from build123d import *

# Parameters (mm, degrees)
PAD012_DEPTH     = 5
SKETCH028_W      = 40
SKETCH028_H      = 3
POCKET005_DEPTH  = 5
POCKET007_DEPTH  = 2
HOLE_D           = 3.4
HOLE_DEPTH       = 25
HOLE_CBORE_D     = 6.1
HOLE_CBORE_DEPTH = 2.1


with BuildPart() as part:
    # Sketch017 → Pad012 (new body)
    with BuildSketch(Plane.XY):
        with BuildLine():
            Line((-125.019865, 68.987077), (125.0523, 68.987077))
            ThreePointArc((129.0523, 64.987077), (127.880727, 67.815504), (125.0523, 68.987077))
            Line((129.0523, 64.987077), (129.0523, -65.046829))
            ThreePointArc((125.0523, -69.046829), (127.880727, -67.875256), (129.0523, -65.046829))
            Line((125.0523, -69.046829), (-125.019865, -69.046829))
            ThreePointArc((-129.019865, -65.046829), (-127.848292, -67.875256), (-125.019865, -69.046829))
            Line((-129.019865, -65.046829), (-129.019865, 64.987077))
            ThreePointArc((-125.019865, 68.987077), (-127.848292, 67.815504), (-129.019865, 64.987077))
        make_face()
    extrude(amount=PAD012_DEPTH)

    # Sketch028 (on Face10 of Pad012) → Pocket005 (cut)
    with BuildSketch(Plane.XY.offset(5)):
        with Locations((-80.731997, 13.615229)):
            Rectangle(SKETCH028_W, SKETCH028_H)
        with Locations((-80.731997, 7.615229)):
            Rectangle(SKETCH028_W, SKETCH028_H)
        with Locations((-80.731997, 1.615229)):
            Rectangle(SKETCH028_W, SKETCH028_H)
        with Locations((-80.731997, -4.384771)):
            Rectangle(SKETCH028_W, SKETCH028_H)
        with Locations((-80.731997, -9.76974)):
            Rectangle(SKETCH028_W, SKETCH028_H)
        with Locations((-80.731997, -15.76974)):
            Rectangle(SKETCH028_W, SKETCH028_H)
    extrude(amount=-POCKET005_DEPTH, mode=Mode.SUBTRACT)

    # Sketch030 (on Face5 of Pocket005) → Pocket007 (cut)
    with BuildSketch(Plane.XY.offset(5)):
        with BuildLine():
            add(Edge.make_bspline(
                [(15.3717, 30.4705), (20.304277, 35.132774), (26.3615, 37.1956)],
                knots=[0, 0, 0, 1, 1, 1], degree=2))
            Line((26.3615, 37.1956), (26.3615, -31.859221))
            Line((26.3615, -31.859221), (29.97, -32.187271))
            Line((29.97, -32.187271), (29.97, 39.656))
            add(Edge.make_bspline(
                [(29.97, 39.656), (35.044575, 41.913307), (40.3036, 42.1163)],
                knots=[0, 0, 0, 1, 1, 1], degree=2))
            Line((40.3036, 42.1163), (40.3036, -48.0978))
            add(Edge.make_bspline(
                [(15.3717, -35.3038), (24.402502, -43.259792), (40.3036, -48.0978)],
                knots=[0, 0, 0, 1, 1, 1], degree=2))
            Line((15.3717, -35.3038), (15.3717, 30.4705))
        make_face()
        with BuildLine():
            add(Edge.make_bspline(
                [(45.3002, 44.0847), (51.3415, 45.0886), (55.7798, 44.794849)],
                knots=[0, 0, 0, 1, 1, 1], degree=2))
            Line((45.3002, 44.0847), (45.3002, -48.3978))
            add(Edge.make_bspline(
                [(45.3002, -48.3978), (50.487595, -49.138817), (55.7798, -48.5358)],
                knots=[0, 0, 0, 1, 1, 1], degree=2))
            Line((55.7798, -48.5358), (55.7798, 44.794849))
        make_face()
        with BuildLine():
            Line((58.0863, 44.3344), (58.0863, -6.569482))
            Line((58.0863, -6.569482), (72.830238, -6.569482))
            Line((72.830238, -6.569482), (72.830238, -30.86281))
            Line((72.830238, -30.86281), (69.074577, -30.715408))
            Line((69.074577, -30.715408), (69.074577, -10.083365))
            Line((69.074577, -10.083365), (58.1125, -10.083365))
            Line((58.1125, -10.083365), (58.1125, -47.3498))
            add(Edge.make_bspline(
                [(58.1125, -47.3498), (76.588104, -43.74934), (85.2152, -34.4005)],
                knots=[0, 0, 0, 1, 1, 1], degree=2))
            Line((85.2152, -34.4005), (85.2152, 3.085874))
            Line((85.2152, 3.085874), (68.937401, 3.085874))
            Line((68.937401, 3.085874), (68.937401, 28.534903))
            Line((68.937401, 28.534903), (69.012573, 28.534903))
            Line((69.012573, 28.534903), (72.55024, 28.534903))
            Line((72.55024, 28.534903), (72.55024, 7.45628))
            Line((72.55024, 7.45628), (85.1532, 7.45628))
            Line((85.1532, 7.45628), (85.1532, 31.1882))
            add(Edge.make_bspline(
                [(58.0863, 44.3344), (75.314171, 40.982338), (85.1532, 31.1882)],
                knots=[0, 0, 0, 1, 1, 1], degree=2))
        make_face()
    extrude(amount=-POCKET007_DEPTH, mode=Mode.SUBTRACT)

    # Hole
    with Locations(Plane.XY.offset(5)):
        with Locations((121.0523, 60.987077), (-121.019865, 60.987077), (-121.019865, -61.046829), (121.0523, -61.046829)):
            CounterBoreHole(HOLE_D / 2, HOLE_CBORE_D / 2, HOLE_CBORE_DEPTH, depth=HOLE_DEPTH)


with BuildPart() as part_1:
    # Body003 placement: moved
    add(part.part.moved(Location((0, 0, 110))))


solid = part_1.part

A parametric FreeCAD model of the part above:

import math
import FreeCAD as App
import Part
import Sketcher

V = App.Vector


def add_polygon(sketch, points):
    """Adds a closed chain of lines whose ends are joined by coincident constraints."""
    first, n = sketch.GeometryCount, len(points)
    for a, b in zip(points, points[1:] + points[:1]):
        sketch.addGeometry(Part.LineSegment(App.Vector(*a, 0), App.Vector(*b, 0)), False)
    for i in range(n):
        sketch.addConstraint(Sketcher.Constraint("Coincident", first + i, 2, first + (i + 1) % n, 1))

doc = App.newDocument("Part")
body = doc.addObject("PartDesign::Body", "Body")

sketch1 = doc.addObject("Sketcher::SketchObject", "Sketch")
body.addObject(sketch1)
sketch1.AttachmentSupport = (doc.XY_Plane, [""])
sketch1.MapMode = "FlatFace"
sketch1.addGeometry([
    Part.LineSegment(V(125.1, 69, 0), V(-125, 69, 0)),
    Part.ArcOfCircle(Part.Circle(V(-125, 65, 0), V(0, 0, 1), 4), math.radians(90), math.radians(180)),
    Part.LineSegment(V(-129, 65, 0), V(-129, -65, 0)),
    Part.ArcOfCircle(Part.Circle(V(-125, -65, 0), V(0, 0, 1), 4), math.radians(-180), math.radians(-90)),
    Part.LineSegment(V(-125, -69, 0), V(125.1, -69, 0)),
    Part.ArcOfCircle(Part.Circle(V(125.1, -65, 0), V(0, 0, 1), 4), math.radians(-90), math.radians(0)),
    Part.LineSegment(V(129.1, -65, 0), V(129.1, 65, 0)),
    Part.ArcOfCircle(Part.Circle(V(125.1, 65, 0), V(0, 0, 1), 4), math.radians(0), math.radians(90)),
], False)
sketch1.addConstraint([
    Sketcher.Constraint("Tangent", 0, 2, 1, 1),
    Sketcher.Constraint("Tangent", 1, 2, 2, 1),
    Sketcher.Constraint("Tangent", 2, 2, 3, 1),
    Sketcher.Constraint("Tangent", 3, 2, 4, 1),
    Sketcher.Constraint("Tangent", 4, 2, 5, 1),
    Sketcher.Constraint("Tangent", 5, 2, 6, 1),
    Sketcher.Constraint("Tangent", 6, 2, 7, 1),
    Sketcher.Constraint("Tangent", 7, 2, 0, 1),
    Sketcher.Constraint("Horizontal", 0),
    Sketcher.Constraint("Vertical", 2),
    Sketcher.Constraint("Horizontal", 4),
    Sketcher.Constraint("Vertical", 6),
    Sketcher.Constraint("Equal", 1, 3),
    Sketcher.Constraint("Equal", 3, 5),
    Sketcher.Constraint("Equal", 5, 7),
    Sketcher.Constraint("Radius", 1, 4.0),
    Sketcher.Constraint("DistanceX", -1, 1, 5, 3, 125.0523),
    Sketcher.Constraint("DistanceX", 0, 2, 0, 1, 250.072165),
    Sketcher.Constraint("DistanceY", 2, 2, 2, 1, 130.033906),
    Sketcher.Constraint("DistanceY", 3, 3, -1, 1, 65.046829),
])
pad1 = doc.addObject("PartDesign::Pad", "Pad")
body.addObject(pad1)
pad1.Profile = sketch1
pad1.Length = 5

sketch2 = doc.addObject("Sketcher::SketchObject", "Sketch001")
body.addObject(sketch2)
sketch2.AttachmentSupport = (doc.XY_Plane, [""])
sketch2.MapMode = "FlatFace"
sketch2.AttachmentOffset = App.Placement(V(0, 0, 5), App.Rotation())
add_polygon(sketch2, [(-100.7, 15.1), (-100.7, 12.1), (-60.7, 12.1), (-60.7, 15.1)])
add_polygon(sketch2, [(-100.7, 9.1), (-100.7, 6.1), (-60.7, 6.1), (-60.7, 9.1)])
add_polygon(sketch2, [(-100.7, 3.1), (-100.7, 0.1), (-60.7, 0.1), (-60.7, 3.1)])
add_polygon(sketch2, [(-100.7, -2.9), (-100.7, -5.9), (-60.7, -5.9), (-60.7, -2.9)])
add_polygon(sketch2, [(-100.7, -8.3), (-100.7, -11.3), (-60.7, -11.3), (-60.7, -8.3)])
add_polygon(sketch2, [(-100.7, -14.3), (-100.7, -17.3), (-60.7, -17.3), (-60.7, -14.3)])
sketch2.addConstraint([
    Sketcher.Constraint("Vertical", 0),
    Sketcher.Constraint("Horizontal", 1),
    Sketcher.Constraint("Vertical", 2),
    Sketcher.Constraint("Horizontal", 3),
    Sketcher.Constraint("Vertical", 4),
    Sketcher.Constraint("Horizontal", 5),
    Sketcher.Constraint("Vertical", 6),
    Sketcher.Constraint("Horizontal", 7),
    Sketcher.Constraint("Vertical", 8),
    Sketcher.Constraint("Horizontal", 9),
    Sketcher.Constraint("Vertical", 10),
    Sketcher.Constraint("Horizontal", 11),
    Sketcher.Constraint("Vertical", 12),
    Sketcher.Constraint("Horizontal", 13),
    Sketcher.Constraint("Vertical", 14),
    Sketcher.Constraint("Horizontal", 15),
    Sketcher.Constraint("Vertical", 16),
    Sketcher.Constraint("Horizontal", 17),
    Sketcher.Constraint("Vertical", 18),
    Sketcher.Constraint("Horizontal", 19),
    Sketcher.Constraint("Vertical", 20),
    Sketcher.Constraint("Horizontal", 21),
    Sketcher.Constraint("Vertical", 22),
    Sketcher.Constraint("Horizontal", 23),
    Sketcher.Constraint("Vertical", 3, 2, 4, 2),
    Sketcher.Constraint("Vertical", 2, 2, 5, 2),
    Sketcher.Constraint("Vertical", 7, 2, 8, 2),
    Sketcher.Constraint("Vertical", 6, 2, 9, 2),
    Sketcher.Constraint("Vertical", 11, 2, 12, 2),
    Sketcher.Constraint("Vertical", 10, 2, 13, 2),
    Sketcher.Constraint("Vertical", 15, 2, 16, 2),
    Sketcher.Constraint("Vertical", 14, 2, 17, 2),
    Sketcher.Constraint("Vertical", 19, 2, 20, 2),
    Sketcher.Constraint("Vertical", 18, 2, 21, 2),
    Sketcher.Constraint("Equal", 2, 4),
    Sketcher.Constraint("Equal", 6, 8),
    Sketcher.Constraint("Equal", 10, 12),
    Sketcher.Constraint("Equal", 14, 16),
    Sketcher.Constraint("Equal", 18, 20),
    Sketcher.Constraint("DistanceX", 1, 1, 1, 2, 40.0),
    Sketcher.Constraint("DistanceY", 0, 2, 0, 1, 3.0),
    Sketcher.Constraint("DistanceY", 4, 2, 0, 2, 6.0),
    Sketcher.Constraint("DistanceY", 8, 2, 4, 2, 6.0),
    Sketcher.Constraint("DistanceY", 12, 2, 8, 2, 6.0),
    Sketcher.Constraint("DistanceY", 20, 2, 16, 2, 6.0),
    Sketcher.Constraint("DistanceY", -1, 1, 0, 2, 12.115229),
    Sketcher.Constraint("DistanceY", 16, 2, -1, 1, 11.26974),
    Sketcher.Constraint("DistanceX", 0, 2, -1, 1, 100.731997),
])
pocket1 = doc.addObject("PartDesign::Pocket", "Pocket")
body.addObject(pocket1)
pocket1.Profile = sketch2
pocket1.Length = 5

sketch3 = doc.addObject("Sketcher::SketchObject", "Sketch002")
body.addObject(sketch3)
sketch3.AttachmentSupport = (doc.XY_Plane, [""])
sketch3.MapMode = "FlatFace"
sketch3.AttachmentOffset = App.Placement(V(0, 0, 5), App.Rotation())
sketch3.addGeometry([
    Part.BSplineCurve([V(15.3717, 30.4705, 0), V(20.304277, 35.132774, 0), V(26.3615, 37.1956, 0)], [3, 3], [0, 1], False, 2, [1, 1, 1], False),
    Part.LineSegment(V(15.3717, 30.4705, 0), V(15.3717, -35.3038, 0)),
    Part.BSplineCurve([V(15.3717, -35.3038, 0), V(24.402502, -43.259792, 0), V(40.3036, -48.0978, 0)], [3, 3], [0, 1], False, 2, [1, 1, 1], False),
    Part.LineSegment(V(40.3036, -48.0978, 0), V(40.3036, 42.1163, 0)),
    Part.BSplineCurve([V(29.97, 39.656, 0), V(35.044575, 41.913307, 0), V(40.3036, 42.1163, 0)], [3, 3], [0, 1], False, 2, [1, 1, 1], False),
    Part.LineSegment(V(29.97, 39.656, 0), V(29.97, -32.187271, 0)),
    Part.LineSegment(V(29.97, -32.187271, 0), V(26.3615, -31.859221, 0)),
    Part.LineSegment(V(26.3615, -31.859221, 0), V(26.3615, 37.1956, 0)),
    Part.BSplineCurve([V(45.3002, 44.0847, 0), V(51.3415, 45.0886, 0), V(55.7798, 44.794849, 0)], [3, 3], [0, 1], False, 2, [1, 1, 1], False),
    Part.LineSegment(V(45.3002, 44.0847, 0), V(45.3002, -48.3978, 0)),
    Part.BSplineCurve([V(45.3002, -48.3978, 0), V(50.487595, -49.138817, 0), V(55.7798, -48.5358, 0)], [3, 3], [0, 1], False, 2, [1, 1, 1], False),
    Part.LineSegment(V(55.7798, -48.5358, 0), V(55.7798, 44.794849, 0)),
    Part.LineSegment(V(58.0863, 44.3344, 0), V(58.0863, -6.569482, 0)),
    Part.LineSegment(V(58.0863, -6.569482, 0), V(72.830238, -6.569482, 0)),
    Part.LineSegment(V(72.830238, -6.569482, 0), V(72.830238, -30.86281, 0)),
    Part.LineSegment(V(72.830238, -30.86281, 0), V(69.074577, -30.715408, 0)),
    Part.LineSegment(V(69.074577, -30.715408, 0), V(69.074577, -10.083365, 0)),
    Part.LineSegment(V(69.074577, -10.083365, 0), V(58.1125, -10.083365, 0)),
    Part.LineSegment(V(58.1125, -10.083365, 0), V(58.1125, -47.3498, 0)),
    Part.BSplineCurve([V(58.1125, -47.3498, 0), V(76.588104, -43.74934, 0), V(85.2152, -34.4005, 0)], [3, 3], [0, 1], False, 2, [1, 1, 1], False),
    Part.LineSegment(V(85.2152, -34.4005, 0), V(85.2152, 3.085874, 0)),
    Part.LineSegment(V(85.2152, 3.085874, 0), V(68.937401, 3.085874, 0)),
    Part.LineSegment(V(68.937401, 3.085874, 0), V(68.937401, 28.534903, 0)),
    Part.LineSegment(V(68.937401, 28.534903, 0), V(72.55024, 28.534903, 0)),
    Part.LineSegment(V(72.55024, 28.534903, 0), V(72.55024, 7.45628, 0)),
    Part.LineSegment(V(72.55024, 7.45628, 0), V(85.1532, 7.45628, 0)),
    Part.LineSegment(V(85.1532, 7.45628, 0), V(85.1532, 31.1882, 0)),
    Part.BSplineCurve([V(58.0863, 44.3344, 0), V(75.314171, 40.982338, 0), V(85.1532, 31.1882, 0)], [3, 3], [0, 1], False, 2, [1, 1, 1], False),
], False)
sketch3.addConstraint([
    Sketcher.Constraint("Block", 0),
    Sketcher.Constraint("Block", 2),
    Sketcher.Constraint("Block", 4),
    Sketcher.Constraint("Block", 8),
    Sketcher.Constraint("Block", 10),
    Sketcher.Constraint("Block", 19),
    Sketcher.Constraint("Block", 27),
    Sketcher.Constraint("Coincident", 0, 1, 1, 1),
    Sketcher.Constraint("Coincident", 1, 2, 2, 1),
    Sketcher.Constraint("Coincident", 2, 2, 3, 1),
    Sketcher.Constraint("Coincident", 3, 2, 4, 2),
    Sketcher.Constraint("Coincident", 4, 1, 5, 1),
    Sketcher.Constraint("Coincident", 5, 2, 6, 1),
    Sketcher.Constraint("Coincident", 6, 2, 7, 1),
    Sketcher.Constraint("Coincident", 7, 2, 0, 2),
    Sketcher.Constraint("Coincident", 8, 1, 9, 1),
    Sketcher.Constraint("Coincident", 9, 2, 10, 1),
    Sketcher.Constraint("Coincident", 10, 2, 11, 1),
    Sketcher.Constraint("Coincident", 11, 2, 8, 2),
    Sketcher.Constraint("Coincident", 12, 2, 13, 1),
    Sketcher.Constraint("Coincident", 13, 2, 14, 1),
    Sketcher.Constraint("Coincident", 14, 2, 15, 1),
    Sketcher.Constraint("Coincident", 15, 2, 16, 1),
    Sketcher.Constraint("Coincident", 16, 2, 17, 1),
    Sketcher.Constraint("Coincident", 17, 2, 18, 1),
    Sketcher.Constraint("Coincident", 18, 2, 19, 1),
    Sketcher.Constraint("Coincident", 19, 2, 20, 1),
    Sketcher.Constraint("Coincident", 20, 2, 21, 1),
    Sketcher.Constraint("Coincident", 21, 2, 22, 1),
    Sketcher.Constraint("Coincident", 22, 2, 23, 1),
    Sketcher.Constraint("Coincident", 23, 2, 24, 1),
    Sketcher.Constraint("Coincident", 24, 2, 25, 1),
    Sketcher.Constraint("Coincident", 25, 2, 26, 1),
    Sketcher.Constraint("Coincident", 26, 2, 27, 2),
    Sketcher.Constraint("Coincident", 27, 1, 12, 1),
    Sketcher.Constraint("Vertical", 5),
    Sketcher.Constraint("Vertical", 7),
    Sketcher.Constraint("Vertical", 12),
    Sketcher.Constraint("Horizontal", 13),
    Sketcher.Constraint("Vertical", 14),
    Sketcher.Constraint("Vertical", 16),
    Sketcher.Constraint("Horizontal", 17),
    Sketcher.Constraint("Vertical", 18),
    Sketcher.Constraint("Vertical", 20),
    Sketcher.Constraint("Horizontal", 21),
    Sketcher.Constraint("Vertical", 22),
    Sketcher.Constraint("Horizontal", 23),
    Sketcher.Constraint("Vertical", 24),
    Sketcher.Constraint("Horizontal", 25),
    Sketcher.Constraint("Vertical", 26),
    Sketcher.Constraint("DistanceX", 21, 2, 21, 1, 16.277799),
    Sketcher.Constraint("DistanceX", 23, 1, 23, 2, 3.612839),
    Sketcher.Constraint("DistanceY", 5, 2, 5, 1, 71.843271),
    Sketcher.Constraint("DistanceY", 7, 1, 7, 2, 69.054821),
    Sketcher.Constraint("DistanceY", 22, 1, 22, 2, 25.449029),
    Sketcher.Constraint("DistanceY", 26, 1, 26, 2, 23.73192),
    Sketcher.Constraint("DistanceY", 14, 2, 15, 2, 0.147402),
    Sketcher.Constraint("DistanceX", 13, 1, 13, 2, 14.743938),
    Sketcher.Constraint("DistanceX", 17, 2, 17, 1, 10.962077),
    Sketcher.Constraint("DistanceY", 12, 2, 12, 1, 50.903882),
    Sketcher.Constraint("DistanceY", 14, 2, 14, 1, 24.293328),
    Sketcher.Constraint("DistanceY", 16, 1, 16, 2, 20.632043),
    Sketcher.Constraint("DistanceY", 20, 1, 20, 2, 37.486374),
])
pocket2 = doc.addObject("PartDesign::Pocket", "Pocket001")
body.addObject(pocket2)
pocket2.Profile = sketch3
pocket2.Length = 2

sketch4 = doc.addObject("Sketcher::SketchObject", "Sketch003")
body.addObject(sketch4)
sketch4.AttachmentSupport = (doc.XY_Plane, [""])
sketch4.MapMode = "FlatFace"
sketch4.AttachmentOffset = App.Placement(V(0, 0, 5), App.Rotation())
sketch4.addGeometry([
    Part.Circle(V(121.1, 61, 0), V(0, 0, 1), 1.7),
    Part.Circle(V(-121, 61, 0), V(0, 0, 1), 1.7),
    Part.Circle(V(-121, -61, 0), V(0, 0, 1), 1.7),
    Part.Circle(V(121.1, -61, 0), V(0, 0, 1), 1.7),
], False)
sketch4.addConstraint([
    Sketcher.Constraint("Equal", 0, 1),
    Sketcher.Constraint("Equal", 1, 2),
    Sketcher.Constraint("Equal", 2, 3),
    Sketcher.Constraint("Horizontal", 0, 3, 1, 3),
    Sketcher.Constraint("Horizontal", 2, 3, 3, 3),
    Sketcher.Constraint("Vertical", 1, 3, 2, 3),
    Sketcher.Constraint("Vertical", 0, 3, 3, 3),
    Sketcher.Constraint("Diameter", 0, 3.4),
    Sketcher.Constraint("DistanceX", -1, 1, 0, 3, 121.0523),
    Sketcher.Constraint("DistanceY", 2, 3, -1, 1, 61.046829),
    Sketcher.Constraint("DistanceY", -1, 1, 0, 3, 60.987077),
    Sketcher.Constraint("DistanceX", 1, 3, -1, 1, 121.019865),
])
doc.recompute()
hole = doc.addObject("PartDesign::Hole", "Hole")
body.addObject(hole)
hole.Profile = sketch4
hole.ThreadType = "None"
hole.Diameter = 3.4
hole.DepthType = "Dimension"
hole.Depth = 25
hole.DrillPoint = "Flat"
hole.HoleCutType = "Counterbore"
hole.HoleCutDiameter = 6.1
hole.HoleCutDepth = 2.1
body2 = doc.addObject("PartDesign::Body", "Body001")
doc.recompute()

body.Placement = App.Placement(V(0, 0, 110), App.Rotation(V(0, 0, 1), 0))
boolean = doc.addObject("PartDesign::Boolean", "Boolean")
body2.addObject(boolean)
boolean.Type = "Fuse"
boolean.addObjects([body])

doc.recompute()
